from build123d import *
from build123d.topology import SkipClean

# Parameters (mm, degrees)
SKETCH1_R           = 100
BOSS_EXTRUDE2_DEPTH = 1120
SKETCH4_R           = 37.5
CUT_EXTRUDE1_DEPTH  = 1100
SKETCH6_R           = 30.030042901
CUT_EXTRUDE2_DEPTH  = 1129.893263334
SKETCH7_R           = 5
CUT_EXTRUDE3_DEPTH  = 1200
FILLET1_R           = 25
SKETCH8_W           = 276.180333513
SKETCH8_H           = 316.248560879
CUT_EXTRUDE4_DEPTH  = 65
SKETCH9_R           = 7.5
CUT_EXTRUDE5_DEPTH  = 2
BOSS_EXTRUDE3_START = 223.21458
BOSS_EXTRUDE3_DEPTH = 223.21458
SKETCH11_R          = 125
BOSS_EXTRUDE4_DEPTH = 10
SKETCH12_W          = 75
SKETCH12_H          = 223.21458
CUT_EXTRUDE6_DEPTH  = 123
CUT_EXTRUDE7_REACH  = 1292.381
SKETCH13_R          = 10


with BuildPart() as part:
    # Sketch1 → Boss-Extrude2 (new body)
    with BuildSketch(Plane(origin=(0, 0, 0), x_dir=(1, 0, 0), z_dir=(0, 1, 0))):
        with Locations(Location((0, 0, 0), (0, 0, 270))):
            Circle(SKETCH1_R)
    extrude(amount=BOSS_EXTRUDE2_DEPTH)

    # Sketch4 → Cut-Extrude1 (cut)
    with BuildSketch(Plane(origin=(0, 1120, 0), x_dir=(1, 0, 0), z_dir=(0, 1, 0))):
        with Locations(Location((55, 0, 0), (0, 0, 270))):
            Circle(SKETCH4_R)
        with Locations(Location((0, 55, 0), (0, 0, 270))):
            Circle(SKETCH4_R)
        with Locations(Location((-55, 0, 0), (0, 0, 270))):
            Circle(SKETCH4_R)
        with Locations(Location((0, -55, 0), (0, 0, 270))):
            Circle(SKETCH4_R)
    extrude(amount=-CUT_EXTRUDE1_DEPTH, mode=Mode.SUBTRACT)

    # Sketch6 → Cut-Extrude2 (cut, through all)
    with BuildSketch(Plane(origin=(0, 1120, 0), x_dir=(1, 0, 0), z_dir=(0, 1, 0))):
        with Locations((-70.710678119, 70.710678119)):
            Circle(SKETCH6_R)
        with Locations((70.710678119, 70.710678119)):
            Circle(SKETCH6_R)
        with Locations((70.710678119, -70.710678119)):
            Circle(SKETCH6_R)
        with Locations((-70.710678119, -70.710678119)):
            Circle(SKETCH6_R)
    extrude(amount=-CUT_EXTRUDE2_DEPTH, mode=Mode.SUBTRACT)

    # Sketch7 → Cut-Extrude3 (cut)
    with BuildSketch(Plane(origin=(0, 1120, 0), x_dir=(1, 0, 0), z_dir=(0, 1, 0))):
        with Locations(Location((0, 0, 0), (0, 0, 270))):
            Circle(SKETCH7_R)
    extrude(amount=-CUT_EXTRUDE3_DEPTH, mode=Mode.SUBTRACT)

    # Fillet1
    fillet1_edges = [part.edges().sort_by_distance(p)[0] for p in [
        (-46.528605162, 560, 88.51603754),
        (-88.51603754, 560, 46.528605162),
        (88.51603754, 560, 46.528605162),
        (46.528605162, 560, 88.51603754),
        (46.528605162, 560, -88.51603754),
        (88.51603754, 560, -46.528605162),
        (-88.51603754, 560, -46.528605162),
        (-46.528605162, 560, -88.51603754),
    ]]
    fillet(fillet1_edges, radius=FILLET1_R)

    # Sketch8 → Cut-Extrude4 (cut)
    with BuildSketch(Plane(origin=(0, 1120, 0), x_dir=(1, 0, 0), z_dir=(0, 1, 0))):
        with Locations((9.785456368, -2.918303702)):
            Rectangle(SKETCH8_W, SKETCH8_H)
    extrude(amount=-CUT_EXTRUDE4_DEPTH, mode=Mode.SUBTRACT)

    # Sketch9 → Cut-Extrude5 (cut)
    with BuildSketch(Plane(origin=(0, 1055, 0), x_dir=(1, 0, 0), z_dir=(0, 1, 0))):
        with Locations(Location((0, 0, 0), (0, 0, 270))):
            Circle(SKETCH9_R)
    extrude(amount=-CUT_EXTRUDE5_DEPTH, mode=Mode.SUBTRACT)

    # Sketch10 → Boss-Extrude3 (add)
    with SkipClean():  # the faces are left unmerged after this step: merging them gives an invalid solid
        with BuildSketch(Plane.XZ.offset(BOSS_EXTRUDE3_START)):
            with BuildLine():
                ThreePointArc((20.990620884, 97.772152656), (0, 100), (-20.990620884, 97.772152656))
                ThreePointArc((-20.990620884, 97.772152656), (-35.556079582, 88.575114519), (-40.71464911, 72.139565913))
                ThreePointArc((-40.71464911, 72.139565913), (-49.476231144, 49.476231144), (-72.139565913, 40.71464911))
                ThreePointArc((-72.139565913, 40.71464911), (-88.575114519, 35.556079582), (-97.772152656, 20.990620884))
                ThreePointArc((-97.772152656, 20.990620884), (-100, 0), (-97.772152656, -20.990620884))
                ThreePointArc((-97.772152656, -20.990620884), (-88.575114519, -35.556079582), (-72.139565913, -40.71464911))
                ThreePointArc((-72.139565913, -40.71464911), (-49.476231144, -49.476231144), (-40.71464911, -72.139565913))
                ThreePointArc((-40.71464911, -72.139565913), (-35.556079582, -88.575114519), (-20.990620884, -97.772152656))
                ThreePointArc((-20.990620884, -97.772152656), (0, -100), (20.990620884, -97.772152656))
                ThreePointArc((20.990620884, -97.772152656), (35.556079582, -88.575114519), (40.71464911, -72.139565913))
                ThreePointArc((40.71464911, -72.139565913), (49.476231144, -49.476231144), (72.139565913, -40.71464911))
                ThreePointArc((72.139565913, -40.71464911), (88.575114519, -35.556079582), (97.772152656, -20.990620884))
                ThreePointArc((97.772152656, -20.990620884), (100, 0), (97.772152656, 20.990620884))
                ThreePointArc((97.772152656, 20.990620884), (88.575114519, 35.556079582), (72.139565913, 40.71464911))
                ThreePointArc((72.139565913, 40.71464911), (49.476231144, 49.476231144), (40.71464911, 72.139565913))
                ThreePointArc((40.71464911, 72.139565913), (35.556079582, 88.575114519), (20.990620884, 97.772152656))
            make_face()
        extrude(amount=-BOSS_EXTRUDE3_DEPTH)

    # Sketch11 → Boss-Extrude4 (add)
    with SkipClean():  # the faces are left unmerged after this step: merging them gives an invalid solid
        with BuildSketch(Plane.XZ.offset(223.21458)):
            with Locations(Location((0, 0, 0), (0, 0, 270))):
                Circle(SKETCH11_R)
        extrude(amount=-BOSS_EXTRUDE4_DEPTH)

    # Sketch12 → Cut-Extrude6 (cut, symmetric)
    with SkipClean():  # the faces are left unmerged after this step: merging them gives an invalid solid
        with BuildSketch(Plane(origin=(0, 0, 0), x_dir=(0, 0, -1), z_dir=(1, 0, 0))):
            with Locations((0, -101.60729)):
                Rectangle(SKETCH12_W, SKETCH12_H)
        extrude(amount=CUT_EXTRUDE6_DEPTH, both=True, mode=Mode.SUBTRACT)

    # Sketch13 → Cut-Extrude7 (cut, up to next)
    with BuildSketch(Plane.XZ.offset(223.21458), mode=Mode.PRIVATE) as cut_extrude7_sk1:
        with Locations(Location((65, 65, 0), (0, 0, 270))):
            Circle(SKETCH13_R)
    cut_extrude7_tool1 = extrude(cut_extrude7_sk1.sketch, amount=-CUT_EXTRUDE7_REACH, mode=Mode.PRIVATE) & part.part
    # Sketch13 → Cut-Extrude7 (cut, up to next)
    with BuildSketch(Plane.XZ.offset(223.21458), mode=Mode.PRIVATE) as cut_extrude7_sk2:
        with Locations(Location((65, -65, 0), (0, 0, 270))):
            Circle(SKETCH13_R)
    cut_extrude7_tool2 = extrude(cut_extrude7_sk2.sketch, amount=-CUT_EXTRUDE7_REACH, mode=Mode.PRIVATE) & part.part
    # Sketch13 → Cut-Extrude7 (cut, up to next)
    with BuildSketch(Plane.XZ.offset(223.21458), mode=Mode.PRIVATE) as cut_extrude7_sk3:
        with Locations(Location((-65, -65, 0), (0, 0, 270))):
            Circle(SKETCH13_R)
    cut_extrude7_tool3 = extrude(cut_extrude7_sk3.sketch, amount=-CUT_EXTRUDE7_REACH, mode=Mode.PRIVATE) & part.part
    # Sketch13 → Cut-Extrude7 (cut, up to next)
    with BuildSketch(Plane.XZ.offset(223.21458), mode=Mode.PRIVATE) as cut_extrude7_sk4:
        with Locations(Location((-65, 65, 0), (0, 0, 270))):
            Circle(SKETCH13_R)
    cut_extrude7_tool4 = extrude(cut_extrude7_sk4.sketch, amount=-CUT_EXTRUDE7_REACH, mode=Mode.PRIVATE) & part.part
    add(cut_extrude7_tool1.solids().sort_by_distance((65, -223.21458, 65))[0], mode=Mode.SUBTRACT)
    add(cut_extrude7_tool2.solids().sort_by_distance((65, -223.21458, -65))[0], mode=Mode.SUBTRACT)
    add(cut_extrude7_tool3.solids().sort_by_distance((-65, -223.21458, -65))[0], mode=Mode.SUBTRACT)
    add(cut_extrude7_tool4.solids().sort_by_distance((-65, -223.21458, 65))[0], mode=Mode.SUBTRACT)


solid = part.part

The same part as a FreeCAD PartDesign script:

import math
import FreeCAD as App
import Part
import Sketcher
Q = App.Units.Quantity


def edges_at(feature, points):
    """Names of the edges that pass closest to the given points."""
    edges = feature.Shape.Edges
    near = lambda p: min(range(len(edges)), key=lambda i: edges[i].distToShape(Part.Vertex(*p))[0])
    return sorted({f"Edge{near(p) + 1}" for p in points})

doc = App.newDocument("Part")
params = doc.addObject("Spreadsheet::Sheet", "Params")
for row, (alias, value) in enumerate([
    ("sketch1_diameter", "200 mm"),
    ("pad1_length", "1120 mm"),
    ("sketch2_diameter", "75 mm"),
    ("pocket1_length", "1100 mm"),
    ("sketch4_diameter", "10 mm"),
    ("pocket3_length", "1200 mm"),
    ("fillet_radius", "25 mm"),
    ("pocket4_length", "65 mm"),
    ("sketch6_diameter", "15 mm"),
    ("pocket5_length", "2 mm"),
    ("sketch7_radius", "100 mm"),
    ("sketch7_radius2", "25 mm"),
    ("pad2_length", "223.21458 mm"),
    ("sketch8_diameter", "250 mm"),
    ("pad3_length", "10 mm"),
    ("sketch9_height", "75 mm"),
    ("pocket6_length", "246 mm"),
    ("sketch10_diameter", "20 mm"),
    ("sketch11_diameter", "20 mm"),
    ("sketch12_diameter", "20 mm"),
    ("sketch13_diameter", "20 mm"),
], start=1):
    params.set(f"A{row}", alias)
    params.set(f"B{row}", "=" + value)
    params.setAlias(f"B{row}", alias)

body = doc.addObject("PartDesign::Body", "Body")

# Sketch on XZ plane
sketch1 = doc.addObject("Sketcher::SketchObject", "Sketch")
body.addObject(sketch1)
sketch1.AttachmentSupport = (doc.XZ_Plane, [""])
sketch1.MapMode = "FlatFace"
sketch1.addGeometry(Part.Circle(App.Vector(0, 0, 0), App.Vector(0, 0, 1), 100), False)
sketch1.addConstraint([
    Sketcher.Constraint("Coincident", 0, 3, -1, 1),
    Sketcher.Constraint("Diameter", 0, Q("200 mm")),
])
sketch1.setExpression("Constraints[1]", "Params.sketch1_diameter")
pad1 = doc.addObject("PartDesign::Pad", "Pad")
body.addObject(pad1)
pad1.Profile = sketch1
pad1.setExpression("Length", "Params.pad1_length")
pad1.Reversed = True

# Sketch on XZ plane
sketch2 = doc.addObject("Sketcher::SketchObject", "Sketch001")
body.addObject(sketch2)
sketch2.AttachmentSupport = (doc.XZ_Plane, [""])
sketch2.MapMode = "FlatFace"
sketch2.AttachmentOffset = App.Placement(App.Vector(0, 0, -1120), App.Rotation())
sketch2.addGeometry([
    Part.Circle(App.Vector(55, 0, 0), App.Vector(0, 0, 1), 38),
    Part.Circle(App.Vector(0, -55, 0), App.Vector(0, 0, 1), 38),
    Part.Circle(App.Vector(-55, 0, 0), App.Vector(0, 0, 1), 38),
    Part.Circle(App.Vector(0, 55, 0), App.Vector(0, 0, 1), 38),
], False)
sketch2.addConstraint([
    Sketcher.Constraint("Equal", 0, 1),
    Sketcher.Constraint("Equal", 1, 2),
    Sketcher.Constraint("Equal", 2, 3),
    Sketcher.Constraint("Symmetric", 0, 3, 2, 3, -1, 1),
    Sketcher.Constraint("Symmetric", 1, 3, 3, 3, -1, 1),
    Sketcher.Constraint("PointOnObject", 0, 3, -1),
    Sketcher.Constraint("PointOnObject", 1, 3, -2),
    Sketcher.Constraint("Diameter", 0, Q("75 mm")),
    Sketcher.Constraint("DistanceX", -1, 1, 0, 3, Q("55 mm")),
    Sketcher.Constraint("DistanceY", 1, 3, -1, 1, Q("55 mm")),
])
sketch2.setExpression("Constraints[7]", "Params.sketch2_diameter")
pocket1 = doc.addObject("PartDesign::Pocket", "Pocket")
body.addObject(pocket1)
pocket1.Profile = sketch2
pocket1.setExpression("Length", "Params.pocket1_length")
pocket1.Reversed = True

# Sketch on XZ plane
sketch3 = doc.addObject("Sketcher::SketchObject", "Sketch002")
body.addObject(sketch3)
sketch3.AttachmentSupport = (doc.XZ_Plane, [""])
sketch3.MapMode = "FlatFace"
sketch3.AttachmentOffset = App.Placement(App.Vector(0, 0, -1120), App.Rotation())
sketch3.addGeometry([
    Part.Circle(App.Vector(-71, -71, 0), App.Vector(0, 0, 1), 30),
    Part.Circle(App.Vector(71, -71, 0), App.Vector(0, 0, 1), 30),
    Part.Circle(App.Vector(71, 71, 0), App.Vector(0, 0, 1), 30),
    Part.Circle(App.Vector(-71, 71, 0), App.Vector(0, 0, 1), 30),
], False)
sketch3.addConstraint([
    Sketcher.Constraint("Equal", 0, 1),
    Sketcher.Constraint("Equal", 1, 2),
    Sketcher.Constraint("Equal", 2, 3),
    Sketcher.Constraint("Symmetric", 0, 3, 2, 3, -1, 1),
    Sketcher.Constraint("Symmetric", 1, 3, 3, 3, -1, 1),
    Sketcher.Constraint("Symmetric", 0, 3, 1, 3, -2),
    Sketcher.Constraint("Diameter", 0, Q("60.060086 mm")),
    Sketcher.Constraint("DistanceX", 0, 3, -1, 1, Q("70.710678 mm")),
    Sketcher.Constraint("DistanceY", 0, 3, -1, 1, Q("70.710678 mm")),
])
pocket2 = doc.addObject("PartDesign::Pocket", "Pocket001")
body.addObject(pocket2)
pocket2.Profile = sketch3
pocket2.Type = "ThroughAll"
pocket2.Reversed = True

# Sketch on XZ plane
sketch4 = doc.addObject("Sketcher::SketchObject", "Sketch003")
body.addObject(sketch4)
sketch4.AttachmentSupport = (doc.XZ_Plane, [""])
sketch4.MapMode = "FlatFace"
sketch4.AttachmentOffset = App.Placement(App.Vector(0, 0, -1120), App.Rotation())
sketch4.addGeometry(Part.Circle(App.Vector(0, 0, 0), App.Vector(0, 0, 1), 5), False)
sketch4.addConstraint([
    Sketcher.Constraint("Coincident", 0, 3, -1, 1),
    Sketcher.Constraint("Diameter", 0, Q("10 mm")),
])
sketch4.setExpression("Constraints[1]", "Params.sketch4_diameter")
pocket3 = doc.addObject("PartDesign::Pocket", "Pocket002")
body.addObject(pocket3)
pocket3.Profile = sketch4
pocket3.setExpression("Length", "Params.pocket3_length")
pocket3.Reversed = True
doc.recompute()

fillet = doc.addObject("PartDesign::Fillet", "Fillet")
body.addObject(fillet)
fillet.Base = (pocket3, edges_at(pocket3, [
    (-46.529, 560, 88.516),
    (-88.516, 560, 46.529),
    (88.516, 560, 46.529),
    (46.529, 560, 88.516),
    (46.529, 560, -88.516),
    (88.516, 560, -46.529),
    (-88.516, 560, -46.529),
    (-46.529, 560, -88.516),
]))
fillet.setExpression("Radius", "Params.fillet_radius")

# Sketch on XZ plane
sketch5 = doc.addObject("Sketcher::SketchObject", "Sketch004")
body.addObject(sketch5)
sketch5.AttachmentSupport = (doc.XZ_Plane, [""])
sketch5.MapMode = "FlatFace"
sketch5.AttachmentOffset = App.Placement(App.Vector(0, 0, -1120), App.Rotation())
sketch5.addGeometry([
    Part.LineSegment(App.Vector(-128, -155, 0), App.Vector(-128, 161, 0)),
    Part.LineSegment(App.Vector(-128, 161, 0), App.Vector(148, 161, 0)),
    Part.LineSegment(App.Vector(148, 161, 0), App.Vector(148, -155, 0)),
    Part.LineSegment(App.Vector(148, -155, 0), App.Vector(-128, -155, 0)),
], False)
sketch5.addConstraint([
    Sketcher.Constraint("Coincident", 0, 2, 1, 1),
    Sketcher.Constraint("Coincident", 1, 2, 2, 1),
    Sketcher.Constraint("Coincident", 2, 2, 3, 1),
    Sketcher.Constraint("Coincident", 3, 2, 0, 1),
    Sketcher.Constraint("Vertical", 0),
    Sketcher.Constraint("Horizontal", 1),
    Sketcher.Constraint("Vertical", 2),
    Sketcher.Constraint("Horizontal", 3),
    Sketcher.Constraint("DistanceY", 0, 1, 0, 2, Q("316.248561 mm")),
    Sketcher.Constraint("DistanceX", 1, 1, 1, 2, Q("276.180334 mm")),
    Sketcher.Constraint("DistanceX", 0, 2, -1, 1, Q("128.30471 mm")),
    Sketcher.Constraint("DistanceY", -1, 1, 0, 2, Q("161.042584 mm")),
])
pocket4 = doc.addObject("PartDesign::Pocket", "Pocket003")
body.addObject(pocket4)
pocket4.Profile = sketch5
pocket4.setExpression("Length", "Params.pocket4_length")
pocket4.Reversed = True

# Sketch on XZ plane
sketch6 = doc.addObject("Sketcher::SketchObject", "Sketch005")
body.addObject(sketch6)
sketch6.AttachmentSupport = (doc.XZ_Plane, [""])
sketch6.MapMode = "FlatFace"
sketch6.AttachmentOffset = App.Placement(App.Vector(0, 0, -1055), App.Rotation())
sketch6.addGeometry(Part.Circle(App.Vector(0, 0, 0), App.Vector(0, 0, 1), 8), False)
sketch6.addConstraint([
    Sketcher.Constraint("Coincident", 0, 3, -1, 1),
    Sketcher.Constraint("Diameter", 0, Q("15 mm")),
])
sketch6.setExpression("Constraints[1]", "Params.sketch6_diameter")
pocket5 = doc.addObject("PartDesign::Pocket", "Pocket004")
body.addObject(pocket5)
pocket5.Profile = sketch6
pocket5.setExpression("Length", "Params.pocket5_length")
pocket5.Reversed = True

# Sketch on XZ plane
sketch7 = doc.addObject("Sketcher::SketchObject", "Sketch006")
body.addObject(sketch7)
sketch7.AttachmentSupport = (doc.XZ_Plane, [""])
sketch7.MapMode = "FlatFace"
sketch7.AttachmentOffset = App.Placement(App.Vector(0, 0, 223.21458), App.Rotation())
sketch7.addGeometry([
    Part.ArcOfCircle(Part.Circle(App.Vector(0, 0, 0), App.Vector(0, 0, 1), 100), math.radians(78), math.radians(102)),  # 0
    Part.ArcOfCircle(Part.Circle(App.Vector(-16, 73, 0), App.Vector(0, 0, 1), 25), math.radians(102), math.radians(183)),  # 1
    Part.ArcOfCircle(Part.Circle(App.Vector(-71, 71, 0), App.Vector(0, 0, 1), 30), math.radians(-93), math.radians(3)),  # 2
    Part.ArcOfCircle(Part.Circle(App.Vector(-73, 16, 0), App.Vector(0, 0, 1), 25), math.radians(87), math.radians(168)),  # 3
    Part.ArcOfCircle(Part.Circle(App.Vector(0, 0, 0), App.Vector(0, 0, 1), 100), math.radians(168), math.radians(192)),  # 4
    Part.ArcOfCircle(Part.Circle(App.Vector(-73, -16, 0), App.Vector(0, 0, 1), 25), math.radians(-168), math.radians(-87)),  # 5
    Part.ArcOfCircle(Part.Circle(App.Vector(-71, -71, 0), App.Vector(0, 0, 1), 30), math.radians(-3), math.radians(93)),  # 6
    Part.ArcOfCircle(Part.Circle(App.Vector(-16, -73, 0), App.Vector(0, 0, 1), 25), math.radians(177), math.radians(258)),  # 7
    Part.ArcOfCircle(Part.Circle(App.Vector(0, 0, 0), App.Vector(0, 0, 1), 100), math.radians(-102), math.radians(-78)),  # 8
    Part.ArcOfCircle(Part.Circle(App.Vector(16, -73, 0), App.Vector(0, 0, 1), 25), math.radians(-78), math.radians(3)),  # 9
    Part.ArcOfCircle(Part.Circle(App.Vector(71, -71, 0), App.Vector(0, 0, 1), 30), math.radians(87), math.radians(183)),  # 10
    Part.ArcOfCircle(Part.Circle(App.Vector(73, -16, 0), App.Vector(0, 0, 1), 25), math.radians(-93), math.radians(-12)),  # 11
    Part.ArcOfCircle(Part.Circle(App.Vector(0, 0, 0), App.Vector(0, 0, 1), 100), math.radians(-12), math.radians(12)),  # 12
    Part.ArcOfCircle(Part.Circle(App.Vector(73, 16, 0), App.Vector(0, 0, 1), 25), math.radians(12), math.radians(93)),  # 13
    Part.ArcOfCircle(Part.Circle(App.Vector(71, 71, 0), App.Vector(0, 0, 1), 30), math.radians(177), math.radians(273)),  # 14
    Part.ArcOfCircle(Part.Circle(App.Vector(16, 73, 0), App.Vector(0, 0, 1), 25), math.radians(-3), math.radians(78)),  # 15
], False)
sketch7.addConstraint([
    Sketcher.Constraint("Tangent", 0, 2, 1, 1),
    Sketcher.Constraint("Tangent", 1, 2, 2, 2),
    Sketcher.Constraint("Tangent", 2, 1, 3, 1),
    Sketcher.Constraint("Tangent", 3, 2, 4, 1),
    Sketcher.Constraint("Tangent", 4, 2, 5, 1),
    Sketcher.Constraint("Tangent", 5, 2, 6, 2),
    Sketcher.Constraint("Tangent", 6, 1, 7, 1),
    Sketcher.Constraint("Tangent", 7, 2, 8, 1),
    Sketcher.Constraint("Tangent", 8, 2, 9, 1),
    Sketcher.Constraint("Tangent", 9, 2, 10, 2),
    Sketcher.Constraint("Tangent", 10, 1, 11, 1),
    Sketcher.Constraint("Tangent", 11, 2, 12, 1),
    Sketcher.Constraint("Tangent", 12, 2, 13, 1),
    Sketcher.Constraint("Tangent", 13, 2, 14, 2),
    Sketcher.Constraint("Tangent", 14, 1, 15, 1),
    Sketcher.Constraint("Tangent", 15, 2, 0, 1),
    Sketcher.Constraint("Coincident", 0, 3, -1, 1),
    Sketcher.Constraint("Coincident", 4, 3, -1, 1),
    Sketcher.Constraint("Coincident", 8, 3, -1, 1),
    Sketcher.Constraint("Coincident", 12, 3, -1, 1),
    Sketcher.Constraint("Equal", 1, 3),
    Sketcher.Constraint("Equal", 0, 4),
    Sketcher.Constraint("Equal", 3, 5),
    Sketcher.Constraint("Equal", 2, 6),
    Sketcher.Constraint("Equal", 5, 7),
    Sketcher.Constraint("Equal", 4, 8),
    Sketcher.Constraint("Equal", 7, 9),
    Sketcher.Constraint("Equal", 6, 10),
    Sketcher.Constraint("Equal", 9, 11),
    Sketcher.Constraint("Equal", 8, 12),
    Sketcher.Constraint("Equal", 11, 13),
    Sketcher.Constraint("Equal", 10, 14),
    Sketcher.Constraint("Equal", 13, 15),
    Sketcher.Constraint("Symmetric", 2, 3, 10, 3, -1, 1),
    Sketcher.Constraint("Symmetric", 6, 3, 14, 3, -1, 1),
    Sketcher.Constraint("Symmetric", 6, 3, 10, 3, -2),
    Sketcher.Constraint("Radius", 0, Q("100 mm")),
    Sketcher.Constraint("Radius", 1, Q("25 mm")),
    Sketcher.Constraint("Radius", 2, Q("30.030043 mm")),
    Sketcher.Constraint("DistanceX", 0, 2, 14, 3, Q("91.701299 mm")),
    Sketcher.Constraint("DistanceY", 3, 3, 1, 2, Q("56.3966 mm")),
])
sketch7.setExpression("Constraints[36]", "Params.sketch7_radius")
sketch7.setExpression("Constraints[37]", "Params.sketch7_radius2")
pad2 = doc.addObject("PartDesign::Pad", "Pad001")
body.addObject(pad2)
pad2.Profile = sketch7
pad2.setExpression("Length", "Params.pad2_length")
pad2.Reversed = True

# Sketch on XZ plane
sketch8 = doc.addObject("Sketcher::SketchObject", "Sketch007")
body.addObject(sketch8)
sketch8.AttachmentSupport = (doc.XZ_Plane, [""])
sketch8.MapMode = "FlatFace"
sketch8.AttachmentOffset = App.Placement(App.Vector(0, 0, 223.21458), App.Rotation())
sketch8.addGeometry(Part.Circle(App.Vector(0, 0, 0), App.Vector(0, 0, 1), 125), False)
sketch8.addConstraint([
    Sketcher.Constraint("Coincident", 0, 3, -1, 1),
    Sketcher.Constraint("Diameter", 0, Q("250 mm")),
])
sketch8.setExpression("Constraints[1]", "Params.sketch8_diameter")
pad3 = doc.addObject("PartDesign::Pad", "Pad002")
body.addObject(pad3)
pad3.Profile = sketch8
pad3.setExpression("Length", "Params.pad3_length")
pad3.Reversed = True

# Sketch on YZ plane
sketch9 = doc.addObject("Sketcher::SketchObject", "Sketch008")
body.addObject(sketch9)
sketch9.AttachmentSupport = (doc.YZ_Plane, [""])
sketch9.MapMode = "FlatFace"
sketch9.addGeometry([
    Part.LineSegment(App.Vector(10, 38, 0), App.Vector(-213, 38, 0)),
    Part.LineSegment(App.Vector(-213, 38, 0), App.Vector(-213, -38, 0)),
    Part.LineSegment(App.Vector(-213, -38, 0), App.Vector(10, -38, 0)),
    Part.LineSegment(App.Vector(10, -38, 0), App.Vector(10, 38, 0)),
], False)
sketch9.addConstraint([
    Sketcher.Constraint("Coincident", 0, 2, 1, 1),
    Sketcher.Constraint("Coincident", 1, 2, 2, 1),
    Sketcher.Constraint("Coincident", 2, 2, 3, 1),
    Sketcher.Constraint("Coincident", 3, 2, 0, 1),
    Sketcher.Constraint("Horizontal", 0),
    Sketcher.Constraint("Vertical", 1),
    Sketcher.Constraint("Horizontal", 2),
    Sketcher.Constraint("Vertical", 3),
    Sketcher.Constraint("DistanceY", 1, 2, 1, 1, Q("75 mm")),
    Sketcher.Constraint("DistanceX", -1, 1, 2, 2, Q("10 mm")),
    Sketcher.Constraint("DistanceY", -1, 1, 0, 2, Q("37.5 mm")),
    Sketcher.Constraint("DistanceX", 0, 2, 0, 1, Q("223.21458 mm")),
])
sketch9.setExpression("Constraints[8]", "Params.sketch9_height")
pocket6 = doc.addObject("PartDesign::Pocket", "Pocket005")
body.addObject(pocket6)
pocket6.Profile = sketch9
pocket6.setExpression("Length", "Params.pocket6_length")
pocket6.Midplane = True

# Sketch on XZ plane
sketch10 = doc.addObject("Sketcher::SketchObject", "Sketch009")
body.addObject(sketch10)
sketch10.AttachmentSupport = (doc.XZ_Plane, [""])
sketch10.MapMode = "FlatFace"
sketch10.AttachmentOffset = App.Placement(App.Vector(0, 0, 223.21458), App.Rotation())
sketch10.addGeometry(Part.Circle(App.Vector(65, 65, 0), App.Vector(0, 0, 1), 10), False)
sketch10.addConstraint([
    Sketcher.Constraint("Diameter", 0, Q("20 mm")),
    Sketcher.Constraint("DistanceX", -1, 1, 0, 3, Q("65 mm")),
    Sketcher.Constraint("DistanceY", -1, 1, 0, 3, Q("65 mm")),
])
sketch10.setExpression("Constraints[0]", "Params.sketch10_diameter")
pocket7 = doc.addObject("PartDesign::Pocket", "Pocket006")
body.addObject(pocket7)
pocket7.Profile = sketch10
pocket7.Type = "UpToFirst"

# Sketch on XZ plane
sketch11 = doc.addObject("Sketcher::SketchObject", "Sketch010")
body.addObject(sketch11)
sketch11.AttachmentSupport = (doc.XZ_Plane, [""])
sketch11.MapMode = "FlatFace"
sketch11.AttachmentOffset = App.Placement(App.Vector(0, 0, 223.21458), App.Rotation())
sketch11.addGeometry(Part.Circle(App.Vector(65, -65, 0), App.Vector(0, 0, 1), 10), False)
sketch11.addConstraint([
    Sketcher.Constraint("Diameter", 0, Q("20 mm")),
    Sketcher.Constraint("DistanceX", -1, 1, 0, 3, Q("65 mm")),
    Sketcher.Constraint("DistanceY", 0, 3, -1, 1, Q("65 mm")),
])
sketch11.setExpression("Constraints[0]", "Params.sketch11_diameter")
pocket8 = doc.addObject("PartDesign::Pocket", "Pocket007")
body.addObject(pocket8)
pocket8.Profile = sketch11
pocket8.Type = "UpToFirst"

# Sketch on XZ plane
sketch12 = doc.addObject("Sketcher::SketchObject", "Sketch011")
body.addObject(sketch12)
sketch12.AttachmentSupport = (doc.XZ_Plane, [""])
sketch12.MapMode = "FlatFace"
sketch12.AttachmentOffset = App.Placement(App.Vector(0, 0, 223.21458), App.Rotation())
sketch12.addGeometry(Part.Circle(App.Vector(-65, -65, 0), App.Vector(0, 0, 1), 10), False)
sketch12.addConstraint([
    Sketcher.Constraint("Diameter", 0, Q("20 mm")),
    Sketcher.Constraint("DistanceX", 0, 3, -1, 1, Q("65 mm")),
    Sketcher.Constraint("DistanceY", 0, 3, -1, 1, Q("65 mm")),
])
sketch12.setExpression("Constraints[0]", "Params.sketch12_diameter")
pocket9 = doc.addObject("PartDesign::Pocket", "Pocket008")
body.addObject(pocket9)
pocket9.Profile = sketch12
pocket9.Type = "UpToFirst"

# Sketch on XZ plane
sketch13 = doc.addObject("Sketcher::SketchObject", "Sketch012")
body.addObject(sketch13)
sketch13.AttachmentSupport = (doc.XZ_Plane, [""])
sketch13.MapMode = "FlatFace"
sketch13.AttachmentOffset = App.Placement(App.Vector(0, 0, 223.21458), App.Rotation())
sketch13.addGeometry(Part.Circle(App.Vector(-65, 65, 0), App.Vector(0, 0, 1), 10), False)
sketch13.addConstraint([
    Sketcher.Constraint("Diameter", 0, Q("20 mm")),
    Sketcher.Constraint("DistanceX", 0, 3, -1, 1, Q("65 mm")),
    Sketcher.Constraint("DistanceY", -1, 1, 0, 3, Q("65 mm")),
])
sketch13.setExpression("Constraints[0]", "Params.sketch13_diameter")
pocket10 = doc.addObject("PartDesign::Pocket", "Pocket009")
body.addObject(pocket10)
pocket10.Profile = sketch13
pocket10.Type = "UpToFirst"

doc.recompute()
